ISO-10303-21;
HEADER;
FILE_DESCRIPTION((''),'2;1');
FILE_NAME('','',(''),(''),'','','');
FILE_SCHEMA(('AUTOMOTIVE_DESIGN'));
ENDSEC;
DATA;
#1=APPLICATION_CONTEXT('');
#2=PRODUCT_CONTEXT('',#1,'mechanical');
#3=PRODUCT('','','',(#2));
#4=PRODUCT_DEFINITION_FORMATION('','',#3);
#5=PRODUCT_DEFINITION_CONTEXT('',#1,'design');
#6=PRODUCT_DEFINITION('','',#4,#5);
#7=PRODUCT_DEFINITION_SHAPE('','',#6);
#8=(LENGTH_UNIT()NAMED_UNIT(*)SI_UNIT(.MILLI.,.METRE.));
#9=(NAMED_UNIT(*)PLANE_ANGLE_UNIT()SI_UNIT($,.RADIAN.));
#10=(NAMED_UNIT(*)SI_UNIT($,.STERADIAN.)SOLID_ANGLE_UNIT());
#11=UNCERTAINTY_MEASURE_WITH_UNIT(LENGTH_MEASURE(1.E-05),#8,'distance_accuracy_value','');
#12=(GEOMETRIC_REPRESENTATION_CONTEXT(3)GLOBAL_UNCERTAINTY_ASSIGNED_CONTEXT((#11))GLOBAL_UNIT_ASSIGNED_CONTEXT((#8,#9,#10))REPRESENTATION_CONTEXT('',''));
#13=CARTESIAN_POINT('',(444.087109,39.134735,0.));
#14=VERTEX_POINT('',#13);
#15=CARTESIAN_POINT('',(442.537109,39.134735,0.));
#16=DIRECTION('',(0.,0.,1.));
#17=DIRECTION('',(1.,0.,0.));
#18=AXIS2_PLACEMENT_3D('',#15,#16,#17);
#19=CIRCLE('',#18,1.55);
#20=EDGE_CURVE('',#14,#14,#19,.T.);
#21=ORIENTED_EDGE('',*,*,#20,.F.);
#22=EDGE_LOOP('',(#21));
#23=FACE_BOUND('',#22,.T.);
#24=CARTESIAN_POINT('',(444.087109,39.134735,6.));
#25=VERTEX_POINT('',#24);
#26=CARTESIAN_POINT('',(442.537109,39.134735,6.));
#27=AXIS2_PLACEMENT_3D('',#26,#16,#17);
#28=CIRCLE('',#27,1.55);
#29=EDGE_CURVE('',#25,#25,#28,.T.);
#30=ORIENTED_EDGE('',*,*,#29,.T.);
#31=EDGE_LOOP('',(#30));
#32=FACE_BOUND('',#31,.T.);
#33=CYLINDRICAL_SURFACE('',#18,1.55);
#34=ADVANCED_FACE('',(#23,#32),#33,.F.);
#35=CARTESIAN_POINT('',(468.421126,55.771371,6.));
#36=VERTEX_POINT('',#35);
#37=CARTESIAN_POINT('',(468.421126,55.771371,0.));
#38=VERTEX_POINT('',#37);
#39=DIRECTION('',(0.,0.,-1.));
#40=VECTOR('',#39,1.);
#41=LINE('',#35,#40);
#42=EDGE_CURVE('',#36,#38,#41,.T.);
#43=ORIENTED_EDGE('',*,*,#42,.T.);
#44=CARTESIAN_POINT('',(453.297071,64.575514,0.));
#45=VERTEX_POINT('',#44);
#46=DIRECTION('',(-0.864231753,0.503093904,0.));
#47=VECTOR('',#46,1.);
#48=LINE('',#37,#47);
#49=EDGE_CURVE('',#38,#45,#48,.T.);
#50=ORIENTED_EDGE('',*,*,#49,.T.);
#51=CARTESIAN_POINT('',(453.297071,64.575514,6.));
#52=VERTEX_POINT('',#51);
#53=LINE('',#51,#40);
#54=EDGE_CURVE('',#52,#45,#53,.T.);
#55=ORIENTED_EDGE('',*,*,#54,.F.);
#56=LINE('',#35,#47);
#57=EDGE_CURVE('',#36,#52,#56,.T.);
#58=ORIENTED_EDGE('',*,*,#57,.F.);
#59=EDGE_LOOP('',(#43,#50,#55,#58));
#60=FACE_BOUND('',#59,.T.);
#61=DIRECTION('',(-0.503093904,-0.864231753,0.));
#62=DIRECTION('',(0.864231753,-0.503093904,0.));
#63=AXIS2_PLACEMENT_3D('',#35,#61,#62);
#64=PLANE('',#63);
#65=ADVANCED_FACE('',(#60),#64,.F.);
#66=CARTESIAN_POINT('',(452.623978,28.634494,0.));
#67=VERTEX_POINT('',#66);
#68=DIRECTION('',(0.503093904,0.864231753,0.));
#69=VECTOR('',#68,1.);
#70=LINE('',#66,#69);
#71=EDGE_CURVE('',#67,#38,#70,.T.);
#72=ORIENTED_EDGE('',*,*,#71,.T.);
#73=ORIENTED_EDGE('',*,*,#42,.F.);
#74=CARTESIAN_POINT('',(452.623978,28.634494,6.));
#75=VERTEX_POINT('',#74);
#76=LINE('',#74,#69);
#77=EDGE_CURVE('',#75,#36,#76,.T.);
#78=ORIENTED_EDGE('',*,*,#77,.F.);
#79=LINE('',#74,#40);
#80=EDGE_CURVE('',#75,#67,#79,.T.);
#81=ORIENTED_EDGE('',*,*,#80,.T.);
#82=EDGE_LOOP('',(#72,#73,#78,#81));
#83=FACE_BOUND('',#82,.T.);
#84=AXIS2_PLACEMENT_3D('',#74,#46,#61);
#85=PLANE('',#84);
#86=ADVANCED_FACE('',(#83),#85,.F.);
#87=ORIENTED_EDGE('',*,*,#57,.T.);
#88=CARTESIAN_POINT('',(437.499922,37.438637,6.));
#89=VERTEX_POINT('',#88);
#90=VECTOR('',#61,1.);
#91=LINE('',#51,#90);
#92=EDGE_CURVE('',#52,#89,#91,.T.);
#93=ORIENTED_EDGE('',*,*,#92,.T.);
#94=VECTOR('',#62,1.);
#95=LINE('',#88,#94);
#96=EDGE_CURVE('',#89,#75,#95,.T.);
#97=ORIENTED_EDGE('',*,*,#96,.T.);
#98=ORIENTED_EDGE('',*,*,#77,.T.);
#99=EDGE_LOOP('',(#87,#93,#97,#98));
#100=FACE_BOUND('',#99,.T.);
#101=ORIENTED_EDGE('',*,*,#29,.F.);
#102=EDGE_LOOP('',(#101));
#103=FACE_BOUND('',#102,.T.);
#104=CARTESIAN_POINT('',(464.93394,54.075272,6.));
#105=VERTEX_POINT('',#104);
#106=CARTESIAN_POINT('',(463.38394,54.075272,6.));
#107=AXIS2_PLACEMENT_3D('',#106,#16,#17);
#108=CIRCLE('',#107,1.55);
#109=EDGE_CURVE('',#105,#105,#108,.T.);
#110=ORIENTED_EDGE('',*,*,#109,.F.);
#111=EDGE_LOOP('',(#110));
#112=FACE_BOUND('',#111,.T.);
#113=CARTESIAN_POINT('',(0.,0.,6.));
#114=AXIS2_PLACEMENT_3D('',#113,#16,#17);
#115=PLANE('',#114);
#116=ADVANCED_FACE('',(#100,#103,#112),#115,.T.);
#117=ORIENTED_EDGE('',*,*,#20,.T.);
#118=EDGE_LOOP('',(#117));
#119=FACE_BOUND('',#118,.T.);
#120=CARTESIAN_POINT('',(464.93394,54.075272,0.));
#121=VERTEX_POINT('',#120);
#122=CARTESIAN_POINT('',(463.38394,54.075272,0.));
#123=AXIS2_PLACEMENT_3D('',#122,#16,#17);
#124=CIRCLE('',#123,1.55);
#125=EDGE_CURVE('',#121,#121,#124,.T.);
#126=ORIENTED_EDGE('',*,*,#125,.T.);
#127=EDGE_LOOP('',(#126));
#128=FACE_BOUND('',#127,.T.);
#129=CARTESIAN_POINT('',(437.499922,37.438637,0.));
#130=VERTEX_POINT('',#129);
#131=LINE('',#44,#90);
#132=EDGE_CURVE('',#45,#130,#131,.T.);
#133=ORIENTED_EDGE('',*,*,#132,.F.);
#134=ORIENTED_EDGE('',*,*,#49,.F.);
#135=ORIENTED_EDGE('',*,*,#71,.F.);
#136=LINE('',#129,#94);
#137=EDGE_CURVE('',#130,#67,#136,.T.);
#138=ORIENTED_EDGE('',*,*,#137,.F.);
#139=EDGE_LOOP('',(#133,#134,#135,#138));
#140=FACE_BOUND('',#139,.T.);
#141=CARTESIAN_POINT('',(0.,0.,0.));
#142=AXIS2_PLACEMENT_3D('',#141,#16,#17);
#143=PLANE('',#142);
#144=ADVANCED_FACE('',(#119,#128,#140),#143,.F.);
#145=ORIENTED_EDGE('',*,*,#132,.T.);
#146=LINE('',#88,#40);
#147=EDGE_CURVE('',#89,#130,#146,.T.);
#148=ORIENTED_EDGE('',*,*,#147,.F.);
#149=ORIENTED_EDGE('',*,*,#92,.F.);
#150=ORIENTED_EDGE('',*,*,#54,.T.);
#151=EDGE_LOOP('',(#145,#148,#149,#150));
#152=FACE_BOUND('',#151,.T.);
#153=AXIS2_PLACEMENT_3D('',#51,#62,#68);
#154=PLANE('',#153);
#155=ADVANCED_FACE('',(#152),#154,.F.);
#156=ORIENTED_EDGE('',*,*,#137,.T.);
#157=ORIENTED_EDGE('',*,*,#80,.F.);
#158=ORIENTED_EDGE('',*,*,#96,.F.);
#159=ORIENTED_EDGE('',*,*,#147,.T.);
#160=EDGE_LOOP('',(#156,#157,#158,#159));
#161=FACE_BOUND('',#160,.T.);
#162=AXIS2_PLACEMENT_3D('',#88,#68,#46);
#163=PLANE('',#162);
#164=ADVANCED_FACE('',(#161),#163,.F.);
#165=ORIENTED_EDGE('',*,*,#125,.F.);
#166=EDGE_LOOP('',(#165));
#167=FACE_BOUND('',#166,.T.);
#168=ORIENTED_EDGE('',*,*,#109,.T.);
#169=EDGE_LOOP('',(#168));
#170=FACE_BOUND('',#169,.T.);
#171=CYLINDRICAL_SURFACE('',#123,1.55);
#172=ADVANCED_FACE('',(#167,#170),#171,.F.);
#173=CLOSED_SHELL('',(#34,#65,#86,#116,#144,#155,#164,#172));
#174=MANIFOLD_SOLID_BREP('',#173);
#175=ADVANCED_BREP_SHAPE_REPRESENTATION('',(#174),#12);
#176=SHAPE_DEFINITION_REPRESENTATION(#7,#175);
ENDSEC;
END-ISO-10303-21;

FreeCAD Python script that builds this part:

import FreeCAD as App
import Part
import Sketcher
from FreeCAD import Vector
Q = App.Units.Quantity

doc = App.newDocument("Part")
body = doc.addObject("PartDesign::Body", "Body")

sketch1 = body.newObject("Sketcher::SketchObject", "Sketch")
sketch1.AttachmentSupport = (doc.getObject("XY_Plane"), [""])
sketch1.MapMode = "FlatFace"
sketch1.addGeometry([
    Part.LineSegment(Vector(437, 37, 0), Vector(453, 29, 0)),
    Part.LineSegment(Vector(453, 29, 0), Vector(468, 56, 0)),
    Part.LineSegment(Vector(468, 56, 0), Vector(453, 65, 0)),
    Part.LineSegment(Vector(453, 65, 0), Vector(437, 37, 0)),
], False)
sketch1.addConstraint([
    Sketcher.Constraint("Coincident", 0, 2, 1, 1),
    Sketcher.Constraint("Coincident", 1, 2, 2, 1),
    Sketcher.Constraint("Coincident", 2, 2, 3, 1),
    Sketcher.Constraint("Coincident", 3, 2, 0, 1),
    Sketcher.Constraint("Perpendicular", 0, 1),
    Sketcher.Constraint("Perpendicular", 1, 2),
    Sketcher.Constraint("Perpendicular", 2, 3),
    Sketcher.Constraint("Distance", 0, Q("17.5 mm")),
    Sketcher.Constraint("Distance", 1, Q("31.4 mm")),
    Sketcher.Constraint("DistanceY", -1, 1, 1, 2, Q("55.771371 mm")),
    Sketcher.Constraint("DistanceX", -1, 1, 2, 2, Q("453.297071 mm")),
    Sketcher.Constraint("DistanceX", 0, 2, 1, 2, Q("15.797149 mm")),
])
pad1 = body.newObject("PartDesign::Pad", "Pad")
pad1.Profile = sketch1
pad1.Length = 6

sketch2 = body.newObject("Sketcher::SketchObject", "Sketch001")
sketch2.AttachmentSupport = (doc.getObject("XY_Plane"), [""])
sketch2.MapMode = "FlatFace"
sketch2.AttachmentOffset = App.Placement(Vector(0, 0, 6), App.Rotation())
sketch2.addGeometry([
    Part.Circle(Vector(463.4, 54.1, 0), Vector(0, 0, 1), 1.6),
    Part.Circle(Vector(442.5, 39.1, 0), Vector(0, 0, 1), 1.6),
], False)
sketch2.addConstraint([
    Sketcher.Constraint("Equal", 0, 1),
    Sketcher.Constraint("Diameter", 0, Q("3.1 mm")),
    Sketcher.Constraint("DistanceX", -1, 1, 0, 3, Q("463.38394 mm")),
    Sketcher.Constraint("DistanceX", -1, 1, 1, 3, Q("442.537109 mm")),
    Sketcher.Constraint("DistanceY", -1, 1, 0, 3, Q("54.075272 mm")),
    Sketcher.Constraint("DistanceY", -1, 1, 1, 3, Q("39.134735 mm")),
])
pocket1 = body.newObject("PartDesign::Pocket", "Pocket")
pocket1.Profile = sketch2
pocket1.Length = 6

doc.recompute()
